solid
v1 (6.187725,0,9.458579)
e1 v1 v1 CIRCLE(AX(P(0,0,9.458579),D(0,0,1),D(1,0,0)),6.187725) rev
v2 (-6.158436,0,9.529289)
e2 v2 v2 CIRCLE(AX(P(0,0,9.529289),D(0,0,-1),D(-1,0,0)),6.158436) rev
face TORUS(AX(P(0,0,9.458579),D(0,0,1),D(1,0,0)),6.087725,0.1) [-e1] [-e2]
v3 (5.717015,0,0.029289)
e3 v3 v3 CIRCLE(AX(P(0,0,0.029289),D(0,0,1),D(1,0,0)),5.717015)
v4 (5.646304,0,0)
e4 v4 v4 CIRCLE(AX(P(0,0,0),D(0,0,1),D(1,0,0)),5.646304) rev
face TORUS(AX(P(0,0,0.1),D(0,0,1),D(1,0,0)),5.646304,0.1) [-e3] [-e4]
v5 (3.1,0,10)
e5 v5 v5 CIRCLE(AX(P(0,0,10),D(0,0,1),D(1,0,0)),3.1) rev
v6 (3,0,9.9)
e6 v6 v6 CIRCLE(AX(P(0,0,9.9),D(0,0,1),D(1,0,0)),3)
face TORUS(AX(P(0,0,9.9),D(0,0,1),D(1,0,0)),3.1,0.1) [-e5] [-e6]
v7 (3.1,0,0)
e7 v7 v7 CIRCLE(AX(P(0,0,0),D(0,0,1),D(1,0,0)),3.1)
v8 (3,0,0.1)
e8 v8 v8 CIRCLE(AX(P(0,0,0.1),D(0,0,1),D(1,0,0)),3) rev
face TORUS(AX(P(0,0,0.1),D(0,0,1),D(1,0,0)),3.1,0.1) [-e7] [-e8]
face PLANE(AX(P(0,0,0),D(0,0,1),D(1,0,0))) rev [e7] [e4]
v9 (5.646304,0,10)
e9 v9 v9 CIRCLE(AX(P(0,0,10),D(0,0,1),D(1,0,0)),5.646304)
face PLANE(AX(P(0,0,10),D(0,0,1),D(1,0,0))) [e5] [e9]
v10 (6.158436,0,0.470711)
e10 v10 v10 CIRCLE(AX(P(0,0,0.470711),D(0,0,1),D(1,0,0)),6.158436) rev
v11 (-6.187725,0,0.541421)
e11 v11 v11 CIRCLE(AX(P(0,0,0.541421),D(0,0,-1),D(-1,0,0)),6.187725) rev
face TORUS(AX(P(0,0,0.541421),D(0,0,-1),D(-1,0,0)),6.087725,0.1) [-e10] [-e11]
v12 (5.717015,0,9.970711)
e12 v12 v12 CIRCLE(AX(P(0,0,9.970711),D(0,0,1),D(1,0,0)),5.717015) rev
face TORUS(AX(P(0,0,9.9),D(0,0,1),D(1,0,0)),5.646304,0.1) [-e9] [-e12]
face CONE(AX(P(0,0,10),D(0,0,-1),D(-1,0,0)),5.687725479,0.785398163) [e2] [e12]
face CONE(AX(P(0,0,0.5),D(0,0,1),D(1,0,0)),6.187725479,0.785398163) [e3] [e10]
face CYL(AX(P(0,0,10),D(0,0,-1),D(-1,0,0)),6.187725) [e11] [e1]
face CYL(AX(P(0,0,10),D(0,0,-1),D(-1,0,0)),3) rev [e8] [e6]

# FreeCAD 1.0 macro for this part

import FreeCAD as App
import Part
import Sketcher


def edges_at(feature, points):
    """Names of the edges that pass closest to the given points."""
    edges = feature.Shape.Edges
    near = lambda p: min(range(len(edges)), key=lambda i: edges[i].distToShape(Part.Vertex(*p))[0])
    return sorted({f"Edge{near(p) + 1}" for p in points})

doc = App.newDocument("Part")
body = doc.addObject("PartDesign::Body", "Body")

# Sketch on XY plane
sketch1 = body.newObject("Sketcher::SketchObject", "Sketch")
sketch1.AttachmentSupport = (doc.getObject("XY_Plane"), [""])
sketch1.MapMode = "FlatFace"
sketch1.addGeometry(Part.Circle(App.Vector(0, 0, 0), App.Vector(0, 0, 1), 6.2), False)
sketch1.addGeometry(Part.Circle(App.Vector(0, 0, 0), App.Vector(0, 0, 1), 3), False)
sketch1.addConstraint(Sketcher.Constraint("Coincident", 0, 3, -1, 1))
sketch1.addConstraint(Sketcher.Constraint("Coincident", 1, 3, -1, 1))
sketch1.addConstraint(Sketcher.Constraint("Diameter", 1, 6.0))
sketch1.addConstraint(Sketcher.Constraint("Diameter", 0, 12.375451))
pad1 = body.newObject("PartDesign::Pad", "Pad")
pad1.Profile = sketch1
pad1.Length = 10
doc.recompute()

fillet = body.newObject("PartDesign::Fillet", "Fillet")
fillet.Base = (pad1, edges_at(pad1, [(-3, 0, 0), (-3, 0, 10)]))
fillet.Radius = 0.1
doc.recompute()

chamfer = body.newObject("PartDesign::Chamfer", "Chamfer")
chamfer.Base = (fillet, edges_at(fillet, [(-6.188, 0, 0), (-6.188, 0, 10)]))
chamfer.Size = 0.5
doc.recompute()

fillet2 = body.newObject("PartDesign::Fillet", "Fillet001")
fillet2.Base = (chamfer, edges_at(chamfer, [
    (-6.188, 0, 9.5),
    (-6.188, 0, 0.5),
    (-5.688, 0, 0),
    (-5.688, 0, 10),
]))
fillet2.Radius = 0.1

doc.recompute()
